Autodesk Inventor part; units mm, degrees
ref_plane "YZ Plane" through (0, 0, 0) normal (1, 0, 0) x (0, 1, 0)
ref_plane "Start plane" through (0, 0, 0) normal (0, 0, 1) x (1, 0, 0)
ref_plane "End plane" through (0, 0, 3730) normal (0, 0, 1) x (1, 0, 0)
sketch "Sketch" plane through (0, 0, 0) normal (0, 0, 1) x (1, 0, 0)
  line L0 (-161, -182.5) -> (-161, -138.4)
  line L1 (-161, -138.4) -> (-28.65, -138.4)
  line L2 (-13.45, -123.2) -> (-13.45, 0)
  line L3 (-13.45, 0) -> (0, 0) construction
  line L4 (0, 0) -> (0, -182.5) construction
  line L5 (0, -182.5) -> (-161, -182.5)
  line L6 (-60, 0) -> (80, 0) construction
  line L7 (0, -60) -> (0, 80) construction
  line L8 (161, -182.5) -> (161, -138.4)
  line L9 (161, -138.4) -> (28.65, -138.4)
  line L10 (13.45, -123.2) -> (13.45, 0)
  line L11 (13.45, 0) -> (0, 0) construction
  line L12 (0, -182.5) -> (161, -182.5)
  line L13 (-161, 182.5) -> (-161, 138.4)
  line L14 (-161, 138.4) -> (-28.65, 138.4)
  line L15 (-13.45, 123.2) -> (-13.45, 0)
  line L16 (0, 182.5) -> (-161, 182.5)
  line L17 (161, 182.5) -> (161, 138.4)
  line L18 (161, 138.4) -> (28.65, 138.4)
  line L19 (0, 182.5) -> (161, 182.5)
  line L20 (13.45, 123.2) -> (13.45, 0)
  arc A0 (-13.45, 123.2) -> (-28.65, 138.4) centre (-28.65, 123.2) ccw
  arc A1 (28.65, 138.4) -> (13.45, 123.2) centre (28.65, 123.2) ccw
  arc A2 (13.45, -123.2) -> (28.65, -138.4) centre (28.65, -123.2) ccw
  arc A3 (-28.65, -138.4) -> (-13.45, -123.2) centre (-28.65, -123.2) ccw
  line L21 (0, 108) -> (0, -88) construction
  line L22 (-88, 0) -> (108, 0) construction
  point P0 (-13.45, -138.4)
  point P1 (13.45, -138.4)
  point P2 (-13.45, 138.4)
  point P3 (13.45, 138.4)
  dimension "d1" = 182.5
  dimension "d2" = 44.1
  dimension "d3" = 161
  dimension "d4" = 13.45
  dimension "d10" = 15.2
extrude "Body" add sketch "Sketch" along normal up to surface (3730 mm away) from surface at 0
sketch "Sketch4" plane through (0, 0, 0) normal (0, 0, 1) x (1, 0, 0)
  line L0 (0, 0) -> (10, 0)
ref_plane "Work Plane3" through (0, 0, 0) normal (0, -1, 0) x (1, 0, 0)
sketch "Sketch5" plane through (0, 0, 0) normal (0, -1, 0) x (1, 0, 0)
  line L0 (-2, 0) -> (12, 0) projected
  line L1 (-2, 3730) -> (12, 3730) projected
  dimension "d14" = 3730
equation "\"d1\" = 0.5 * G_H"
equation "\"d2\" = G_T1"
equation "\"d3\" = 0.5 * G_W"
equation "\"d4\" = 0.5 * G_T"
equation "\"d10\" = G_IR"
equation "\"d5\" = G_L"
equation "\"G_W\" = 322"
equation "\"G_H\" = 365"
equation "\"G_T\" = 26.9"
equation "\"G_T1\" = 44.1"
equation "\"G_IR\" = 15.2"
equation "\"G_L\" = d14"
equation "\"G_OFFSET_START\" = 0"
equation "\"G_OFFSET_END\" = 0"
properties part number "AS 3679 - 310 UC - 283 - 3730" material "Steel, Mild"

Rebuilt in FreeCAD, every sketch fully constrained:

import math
import FreeCAD as App
import Part
import Sketcher

V = App.Vector
Q = App.Units.Quantity

doc = App.newDocument("Part")
body = doc.addObject("PartDesign::Body", "Body")

sketch1 = body.newObject("Sketcher::SketchObject", "Sketch")
sketch1.AttachmentSupport = (doc.getObject("XY_Plane"), [""])
sketch1.MapMode = "FlatFace"
sketch1.addGeometry(Part.LineSegment(V(-161, -138, 0), V(-161, -182, 0)), False)
sketch1.addGeometry(Part.LineSegment(V(-161, -182, 0), V(161, -182, 0)), False)
sketch1.addGeometry(Part.LineSegment(V(161, -182, 0), V(161, -138, 0)), False)
sketch1.addGeometry(Part.LineSegment(V(161, -138, 0), V(29, -138, 0)), False)
sketch1.addGeometry(Part.ArcOfCircle(Part.Circle(V(29, -123, 0), V(0, 0, 1), 15), math.radians(180), math.radians(270)), False)
sketch1.addGeometry(Part.LineSegment(V(13, -123, 0), V(13, 123, 0)), False)
sketch1.addGeometry(Part.ArcOfCircle(Part.Circle(V(29, 123, 0), V(0, 0, 1), 15), math.radians(90), math.radians(180)), False)
sketch1.addGeometry(Part.LineSegment(V(29, 138, 0), V(161, 138, 0)), False)
sketch1.addGeometry(Part.LineSegment(V(161, 138, 0), V(161, 182, 0)), False)
sketch1.addGeometry(Part.LineSegment(V(161, 182, 0), V(-161, 182, 0)), False)
sketch1.addGeometry(Part.LineSegment(V(-161, 182, 0), V(-161, 138, 0)), False)
sketch1.addGeometry(Part.LineSegment(V(-161, 138, 0), V(-29, 138, 0)), False)
sketch1.addGeometry(Part.ArcOfCircle(Part.Circle(V(-29, 123, 0), V(0, 0, 1), 15), math.radians(0), math.radians(90)), False)
sketch1.addGeometry(Part.LineSegment(V(-13, 123, 0), V(-13, -123, 0)), False)
sketch1.addGeometry(Part.ArcOfCircle(Part.Circle(V(-29, -123, 0), V(0, 0, 1), 15), math.radians(-90), math.radians(0)), False)
sketch1.addGeometry(Part.LineSegment(V(-29, -138, 0), V(-161, -138, 0)), False)
sketch1.addConstraint(Sketcher.Constraint("Coincident", 0, 2, 1, 1))
sketch1.addConstraint(Sketcher.Constraint("Coincident", 1, 2, 2, 1))
sketch1.addConstraint(Sketcher.Constraint("Coincident", 2, 2, 3, 1))
sketch1.addConstraint(Sketcher.Constraint("Tangent", 3, 2, 4, 2))
sketch1.addConstraint(Sketcher.Constraint("Tangent", 4, 1, 5, 1))
sketch1.addConstraint(Sketcher.Constraint("Tangent", 5, 2, 6, 2))
sketch1.addConstraint(Sketcher.Constraint("Tangent", 6, 1, 7, 1))
sketch1.addConstraint(Sketcher.Constraint("Coincident", 7, 2, 8, 1))
sketch1.addConstraint(Sketcher.Constraint("Coincident", 8, 2, 9, 1))
sketch1.addConstraint(Sketcher.Constraint("Coincident", 9, 2, 10, 1))
sketch1.addConstraint(Sketcher.Constraint("Coincident", 10, 2, 11, 1))
sketch1.addConstraint(Sketcher.Constraint("Tangent", 11, 2, 12, 2))
sketch1.addConstraint(Sketcher.Constraint("Tangent", 12, 1, 13, 1))
sketch1.addConstraint(Sketcher.Constraint("Tangent", 13, 2, 14, 2))
sketch1.addConstraint(Sketcher.Constraint("Tangent", 14, 1, 15, 1))
sketch1.addConstraint(Sketcher.Constraint("Coincident", 15, 2, 0, 1))
sketch1.addConstraint(Sketcher.Constraint("Vertical", 0))
sketch1.addConstraint(Sketcher.Constraint("Horizontal", 1))
sketch1.addConstraint(Sketcher.Constraint("Vertical", 2))
sketch1.addConstraint(Sketcher.Constraint("Horizontal", 3))
sketch1.addConstraint(Sketcher.Constraint("Vertical", 5))
sketch1.addConstraint(Sketcher.Constraint("Horizontal", 7))
sketch1.addConstraint(Sketcher.Constraint("Vertical", 8))
sketch1.addConstraint(Sketcher.Constraint("Horizontal", 9))
sketch1.addConstraint(Sketcher.Constraint("Vertical", 10))
sketch1.addConstraint(Sketcher.Constraint("Horizontal", 11))
sketch1.addConstraint(Sketcher.Constraint("Vertical", 13))
sketch1.addConstraint(Sketcher.Constraint("Horizontal", 15))
sketch1.addConstraint(Sketcher.Constraint("Equal", 4, 6))
sketch1.addConstraint(Sketcher.Constraint("Equal", 6, 12))
sketch1.addConstraint(Sketcher.Constraint("Equal", 12, 14))
sketch1.addConstraint(Sketcher.Constraint("Symmetric", 4, 3, 12, 3, -1, 1))
sketch1.addConstraint(Sketcher.Constraint("Symmetric", 0, 2, 8, 2, -1, 1))
sketch1.addConstraint(Sketcher.Constraint("Symmetric", 7, 2, 10, 2, -2))
sketch1.addConstraint(Sketcher.Constraint("Symmetric", 2, 2, 15, 2, -2))
sketch1.addConstraint(Sketcher.Constraint("Radius", 4, Q("15.2 mm")))
sketch1.addConstraint(Sketcher.Constraint("DistanceY", 0, 2, 0, 1, Q("44.1 mm")))
sketch1.addConstraint(Sketcher.Constraint("DistanceX", 0, 2, -1, 1, Q("161 mm")))
sketch1.addConstraint(Sketcher.Constraint("DistanceY", 0, 2, -1, 1, Q("182.5 mm")))
sketch1.addConstraint(Sketcher.Constraint("DistanceX", -1, 1, 4, 1, Q("13.45 mm")))
pad1 = body.newObject("PartDesign::Pad", "Pad")
pad1.Profile = sketch1
pad1.Length = 3730

doc.recompute()
